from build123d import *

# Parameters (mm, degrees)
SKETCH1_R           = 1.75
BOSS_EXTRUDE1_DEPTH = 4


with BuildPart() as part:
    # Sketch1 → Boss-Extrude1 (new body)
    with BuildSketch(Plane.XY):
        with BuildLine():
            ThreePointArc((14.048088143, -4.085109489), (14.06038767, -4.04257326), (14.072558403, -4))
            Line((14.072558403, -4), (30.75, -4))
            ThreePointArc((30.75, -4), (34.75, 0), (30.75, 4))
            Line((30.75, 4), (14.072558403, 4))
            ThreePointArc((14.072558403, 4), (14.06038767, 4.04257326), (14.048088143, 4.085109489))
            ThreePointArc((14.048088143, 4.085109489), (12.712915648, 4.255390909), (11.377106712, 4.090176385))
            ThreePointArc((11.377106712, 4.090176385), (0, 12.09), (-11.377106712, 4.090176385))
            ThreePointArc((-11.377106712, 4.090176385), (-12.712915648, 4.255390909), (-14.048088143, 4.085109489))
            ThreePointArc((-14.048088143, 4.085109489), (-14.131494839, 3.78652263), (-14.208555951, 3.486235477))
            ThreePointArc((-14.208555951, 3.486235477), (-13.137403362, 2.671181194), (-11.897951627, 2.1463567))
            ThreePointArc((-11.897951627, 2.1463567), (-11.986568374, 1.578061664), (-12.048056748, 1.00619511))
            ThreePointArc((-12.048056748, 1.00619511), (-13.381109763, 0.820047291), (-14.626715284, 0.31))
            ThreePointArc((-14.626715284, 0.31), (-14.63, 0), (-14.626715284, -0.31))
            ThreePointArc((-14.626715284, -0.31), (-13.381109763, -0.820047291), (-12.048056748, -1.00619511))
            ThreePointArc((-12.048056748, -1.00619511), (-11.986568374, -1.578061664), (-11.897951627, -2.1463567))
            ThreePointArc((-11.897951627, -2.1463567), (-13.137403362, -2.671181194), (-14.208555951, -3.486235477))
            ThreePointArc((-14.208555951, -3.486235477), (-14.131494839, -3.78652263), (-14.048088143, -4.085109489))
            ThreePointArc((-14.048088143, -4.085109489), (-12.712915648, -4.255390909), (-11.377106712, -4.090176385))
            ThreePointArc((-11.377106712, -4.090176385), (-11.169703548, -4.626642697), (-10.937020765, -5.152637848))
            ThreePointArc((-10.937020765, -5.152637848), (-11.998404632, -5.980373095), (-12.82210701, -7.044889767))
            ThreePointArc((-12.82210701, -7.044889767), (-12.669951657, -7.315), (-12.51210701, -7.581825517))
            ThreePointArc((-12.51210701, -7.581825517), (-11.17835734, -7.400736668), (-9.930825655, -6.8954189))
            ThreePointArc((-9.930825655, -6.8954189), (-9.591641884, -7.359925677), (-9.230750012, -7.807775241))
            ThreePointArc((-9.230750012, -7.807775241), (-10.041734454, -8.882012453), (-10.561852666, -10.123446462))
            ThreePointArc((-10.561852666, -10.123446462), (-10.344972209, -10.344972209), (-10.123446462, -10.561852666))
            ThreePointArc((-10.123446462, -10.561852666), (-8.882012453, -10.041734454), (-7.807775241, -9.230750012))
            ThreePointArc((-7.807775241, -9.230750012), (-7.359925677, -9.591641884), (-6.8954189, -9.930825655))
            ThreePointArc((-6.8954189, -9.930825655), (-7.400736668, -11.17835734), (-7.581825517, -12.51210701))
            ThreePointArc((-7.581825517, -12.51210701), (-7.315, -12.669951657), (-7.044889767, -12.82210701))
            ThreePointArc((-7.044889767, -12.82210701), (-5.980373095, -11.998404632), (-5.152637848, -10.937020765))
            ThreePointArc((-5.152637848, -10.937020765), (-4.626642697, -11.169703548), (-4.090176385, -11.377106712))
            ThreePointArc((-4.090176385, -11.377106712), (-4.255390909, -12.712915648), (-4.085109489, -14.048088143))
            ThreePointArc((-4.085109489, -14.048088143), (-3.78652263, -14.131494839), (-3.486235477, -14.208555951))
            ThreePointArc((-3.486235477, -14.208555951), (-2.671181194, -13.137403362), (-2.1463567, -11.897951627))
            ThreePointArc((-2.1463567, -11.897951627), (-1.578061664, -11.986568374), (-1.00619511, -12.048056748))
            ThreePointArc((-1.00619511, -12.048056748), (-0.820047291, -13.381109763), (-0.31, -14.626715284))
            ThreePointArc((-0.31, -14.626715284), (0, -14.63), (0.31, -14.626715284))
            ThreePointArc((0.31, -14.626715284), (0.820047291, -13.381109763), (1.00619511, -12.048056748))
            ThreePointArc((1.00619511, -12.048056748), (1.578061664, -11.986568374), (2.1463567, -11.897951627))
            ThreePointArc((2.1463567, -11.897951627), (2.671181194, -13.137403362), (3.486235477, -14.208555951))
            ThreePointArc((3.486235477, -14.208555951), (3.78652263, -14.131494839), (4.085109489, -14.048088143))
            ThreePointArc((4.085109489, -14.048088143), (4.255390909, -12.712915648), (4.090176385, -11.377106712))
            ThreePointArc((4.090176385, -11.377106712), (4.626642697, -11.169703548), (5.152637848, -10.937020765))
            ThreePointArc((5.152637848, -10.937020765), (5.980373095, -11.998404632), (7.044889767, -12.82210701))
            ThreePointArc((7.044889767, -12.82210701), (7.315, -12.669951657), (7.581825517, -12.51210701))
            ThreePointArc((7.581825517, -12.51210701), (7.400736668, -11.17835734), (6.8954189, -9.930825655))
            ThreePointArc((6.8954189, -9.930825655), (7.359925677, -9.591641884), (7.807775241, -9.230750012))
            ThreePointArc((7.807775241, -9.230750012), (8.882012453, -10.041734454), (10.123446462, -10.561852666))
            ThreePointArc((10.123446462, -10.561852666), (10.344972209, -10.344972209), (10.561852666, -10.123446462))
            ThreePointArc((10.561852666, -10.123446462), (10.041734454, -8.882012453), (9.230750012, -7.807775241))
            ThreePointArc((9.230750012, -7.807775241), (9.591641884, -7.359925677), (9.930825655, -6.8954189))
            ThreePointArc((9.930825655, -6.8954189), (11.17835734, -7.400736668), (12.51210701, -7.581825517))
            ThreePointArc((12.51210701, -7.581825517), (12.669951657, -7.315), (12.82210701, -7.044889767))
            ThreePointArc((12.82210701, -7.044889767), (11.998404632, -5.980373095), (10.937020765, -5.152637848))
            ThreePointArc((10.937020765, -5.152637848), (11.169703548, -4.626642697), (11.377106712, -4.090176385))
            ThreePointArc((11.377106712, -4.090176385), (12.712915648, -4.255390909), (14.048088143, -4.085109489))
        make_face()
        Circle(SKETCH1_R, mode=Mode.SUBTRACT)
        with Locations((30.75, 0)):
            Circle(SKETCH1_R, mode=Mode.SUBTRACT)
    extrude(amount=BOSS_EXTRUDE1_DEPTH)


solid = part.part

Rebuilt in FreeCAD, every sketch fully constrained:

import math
import FreeCAD as App
import Part
import Sketcher
from FreeCAD import Vector
Q = App.Units.Quantity

doc = App.newDocument("Part")
body = doc.addObject("PartDesign::Body", "Body")

# Sketch on XY plane
sketch1 = body.newObject("Sketcher::SketchObject", "Sketch")
sketch1.AttachmentSupport = (doc.getObject("XY_Plane"), [""])
sketch1.MapMode = "FlatFace"
sketch1.addGeometry(Part.ArcOfCircle(Part.Circle(Vector(-0.000108, 0.000031, 0), Vector(0, 0, 1), 14.630112), math.radians(-16.214149), math.radians(-15.867332)), False)
sketch1.addGeometry(Part.LineSegment(Vector(14.072558, -4, 0), Vector(30.75, -4, 0)), False)
sketch1.addGeometry(Part.ArcOfCircle(Part.Circle(Vector(30.75, 0, 0), Vector(0, 0, 1), 4), math.radians(-90), math.radians(90)), False)
sketch1.addGeometry(Part.LineSegment(Vector(30.75, 4, 0), Vector(14.072558, 4, 0)), False)
sketch1.addGeometry(Part.ArcOfCircle(Part.Circle(Vector(-0.000108, -0.000031, 0), Vector(0, 0, 1), 14.630112), math.radians(15.867332), math.radians(16.214149)), False)
sketch1.addGeometry(Part.ArcOfCircle(Part.Circle(Vector(12.702672, -1.144599, 0), Vector(0, 0, 1), 5.4), math.radians(75.572711), math.radians(104.209907)), False)
sketch1.addGeometry(Part.ArcOfCircle(Part.Circle(Vector(0, 0, 0), Vector(0, 0, 1), 12.09), math.radians(19.773986), math.radians(160.226014)), False)
sketch1.addGeometry(Part.ArcOfCircle(Part.Circle(Vector(-12.702672, -1.144599, 0), Vector(0, 0, 1), 5.4), math.radians(75.790093), math.radians(104.427289)), False)
sketch1.addGeometry(Part.ArcOfCircle(Part.Circle(Vector(0, 0, 0), Vector(0, 0, 1), 14.63), math.radians(163.78585), math.radians(166.21415)), False)
sketch1.addGeometry(Part.ArcOfCircle(Part.Circle(Vector(-10.428537, 7.342588, 0), Vector(0, 0, 1), 5.4), math.radians(-134.427289), math.radians(-105.790093)), False)
sketch1.addGeometry(Part.ArcOfCircle(Part.Circle(Vector(0, 0, 0), Vector(0, 0, 1), 12.09), math.radians(169.773986), math.radians(175.226014)), False)
sketch1.addGeometry(Part.ArcOfCircle(Part.Circle(Vector(-11.973595, -4.393291, 0), Vector(0, 0, 1), 5.4), math.radians(90.790093), math.radians(119.427289)), False)
sketch1.addGeometry(Part.ArcOfCircle(Part.Circle(Vector(0, 0, 0), Vector(0, 0, 1), 14.63), math.radians(178.78585), math.radians(181.21415)), False)
sketch1.addGeometry(Part.ArcOfCircle(Part.Circle(Vector(-11.973595, 4.393291, 0), Vector(0, 0, 1), 5.4), math.radians(-119.427289), math.radians(-90.790093)), False)
sketch1.addGeometry(Part.ArcOfCircle(Part.Circle(Vector(0, 0, 0), Vector(0, 0, 1), 12.09), math.radians(-175.226014), math.radians(-169.773986)), False)
sketch1.addGeometry(Part.ArcOfCircle(Part.Circle(Vector(-10.428537, -7.342588, 0), Vector(0, 0, 1), 5.4), math.radians(105.790093), math.radians(134.427289)), False)
sketch1.addGeometry(Part.ArcOfCircle(Part.Circle(Vector(0, 0, 0), Vector(0, 0, 1), 14.63), math.radians(-166.21415), math.radians(-163.78585)), False)
sketch1.addGeometry(Part.ArcOfCircle(Part.Circle(Vector(-12.702672, 1.144599, 0), Vector(0, 0, 1), 5.4), math.radians(-104.427289), math.radians(-75.790093)), False)
sketch1.addGeometry(Part.ArcOfCircle(Part.Circle(Vector(0, 0, 0), Vector(0, 0, 1), 12.09), math.radians(-160.226014), math.radians(-154.773986)), False)
sketch1.addGeometry(Part.ArcOfCircle(Part.Circle(Vector(-8.172791, -9.791499, 0), Vector(0, 0, 1), 5.4), math.radians(120.790093), math.radians(149.427289)), False)
sketch1.addGeometry(Part.ArcOfCircle(Part.Circle(Vector(0.000002, 0.000001, 0), Vector(0, 0, 1), 14.630002), math.radians(-151.21415), math.radians(-148.78585)), False)
sketch1.addGeometry(Part.ArcOfCircle(Part.Circle(Vector(-12.566083, -2.182095, 0), Vector(0, 0, 1), 5.4), math.radians(-89.427289), math.radians(-60.790093)), False)
sketch1.addGeometry(Part.ArcOfCircle(Part.Circle(Vector(0, 0, 0), Vector(0, 0, 1), 12.09), math.radians(-145.226014), math.radians(-139.773986)), False)
sketch1.addGeometry(Part.ArcOfCircle(Part.Circle(Vector(-5.360084, -11.573136, 0), Vector(0, 0, 1), 5.4), math.radians(135.790093), math.radians(164.427289)), False)
sketch1.addGeometry(Part.ArcOfCircle(Part.Circle(Vector(0, 0, 0), Vector(0, 0, 1), 14.63), math.radians(-136.21415), math.radians(-133.78585)), False)
sketch1.addGeometry(Part.ArcOfCircle(Part.Circle(Vector(-11.573136, -5.360084, 0), Vector(0, 0, 1), 5.4), math.radians(-74.427289), math.radians(-45.790093)), False)
sketch1.addGeometry(Part.ArcOfCircle(Part.Circle(Vector(0, 0, 0), Vector(0, 0, 1), 12.09), math.radians(-130.226014), math.radians(-124.773986)), False)
sketch1.addGeometry(Part.ArcOfCircle(Part.Circle(Vector(-2.182095, -12.566083, 0), Vector(0, 0, 1), 5.4), math.radians(150.790093), math.radians(179.427289)), False)
sketch1.addGeometry(Part.ArcOfCircle(Part.Circle(Vector(0.000001, 0.000002, 0), Vector(0, 0, 1), 14.630002), math.radians(-121.21415), math.radians(-118.78585)), False)
sketch1.addGeometry(Part.ArcOfCircle(Part.Circle(Vector(-9.791499, -8.172791, 0), Vector(0, 0, 1), 5.4), math.radians(-59.427289), math.radians(-30.790093)), False)
sketch1.addGeometry(Part.ArcOfCircle(Part.Circle(Vector(0, 0, 0), Vector(0, 0, 1), 12.09), math.radians(-115.226014), math.radians(-109.773986)), False)
sketch1.addGeometry(Part.ArcOfCircle(Part.Circle(Vector(1.144599, -12.702672, 0), Vector(0, 0, 1), 5.4), math.radians(165.790093), math.radians(194.427289)), False)
sketch1.addGeometry(Part.ArcOfCircle(Part.Circle(Vector(0, 0, 0), Vector(0, 0, 1), 14.63), math.radians(-106.21415), math.radians(-103.78585)), False)
sketch1.addGeometry(Part.ArcOfCircle(Part.Circle(Vector(-7.342588, -10.428537, 0), Vector(0, 0, 1), 5.4), math.radians(-44.427289), math.radians(-15.790093)), False)
sketch1.addGeometry(Part.ArcOfCircle(Part.Circle(Vector(0, 0, 0), Vector(0, 0, 1), 12.09), math.radians(-100.226014), math.radians(-94.773986)), False)
sketch1.addGeometry(Part.ArcOfCircle(Part.Circle(Vector(4.393291, -11.973595, 0), Vector(0, 0, 1), 5.4), math.radians(-179.209907), math.radians(-150.572711)), False)
sketch1.addGeometry(Part.ArcOfCircle(Part.Circle(Vector(0, 0, 0), Vector(0, 0, 1), 14.63), math.radians(-91.21415), math.radians(-88.78585)), False)
sketch1.addGeometry(Part.ArcOfCircle(Part.Circle(Vector(-4.393291, -11.973595, 0), Vector(0, 0, 1), 5.4), math.radians(-29.427289), math.radians(-0.790093)), False)
sketch1.addGeometry(Part.ArcOfCircle(Part.Circle(Vector(0, 0, 0), Vector(0, 0, 1), 12.09), math.radians(-85.226014), math.radians(-79.773986)), False)
sketch1.addGeometry(Part.ArcOfCircle(Part.Circle(Vector(7.342588, -10.428537, 0), Vector(0, 0, 1), 5.4), math.radians(-164.209907), math.radians(-135.572711)), False)
sketch1.addGeometry(Part.ArcOfCircle(Part.Circle(Vector(0, 0, 0), Vector(0, 0, 1), 14.63), math.radians(-76.21415), math.radians(-73.78585)), False)
sketch1.addGeometry(Part.ArcOfCircle(Part.Circle(Vector(-1.144599, -12.702672, 0), Vector(0, 0, 1), 5.4), math.radians(-14.427289), math.radians(14.209907)), False)
sketch1.addGeometry(Part.ArcOfCircle(Part.Circle(Vector(0, 0, 0), Vector(0, 0, 1), 12.09), math.radians(-70.226014), math.radians(-64.773986)), False)
sketch1.addGeometry(Part.ArcOfCircle(Part.Circle(Vector(9.791499, -8.172791, 0), Vector(0, 0, 1), 5.4), math.radians(-149.209907), math.radians(-120.572711)), False)
sketch1.addGeometry(Part.ArcOfCircle(Part.Circle(Vector(-0.000001, 0.000002, 0), Vector(0, 0, 1), 14.630002), math.radians(-61.21415), math.radians(-58.78585)), False)
sketch1.addGeometry(Part.ArcOfCircle(Part.Circle(Vector(2.182095, -12.566083, 0), Vector(0, 0, 1), 5.4), math.radians(0.572711), math.radians(29.209907)), False)
sketch1.addGeometry(Part.ArcOfCircle(Part.Circle(Vector(0, 0, 0), Vector(0, 0, 1), 12.09), math.radians(-55.226014), math.radians(-49.773986)), False)
sketch1.addGeometry(Part.ArcOfCircle(Part.Circle(Vector(11.573136, -5.360084, 0), Vector(0, 0, 1), 5.4), math.radians(-134.209907), math.radians(-105.572711)), False)
sketch1.addGeometry(Part.ArcOfCircle(Part.Circle(Vector(0, 0, 0), Vector(0, 0, 1), 14.63), math.radians(-46.21415), math.radians(-43.78585)), False)
sketch1.addGeometry(Part.ArcOfCircle(Part.Circle(Vector(5.360084, -11.573136, 0), Vector(0, 0, 1), 5.4), math.radians(15.572711), math.radians(44.209907)), False)
sketch1.addGeometry(Part.ArcOfCircle(Part.Circle(Vector(0, 0, 0), Vector(0, 0, 1), 12.09), math.radians(-40.226014), math.radians(-34.773986)), False)
sketch1.addGeometry(Part.ArcOfCircle(Part.Circle(Vector(12.566083, -2.182095, 0), Vector(0, 0, 1), 5.4), math.radians(-119.209907), math.radians(-90.572711)), False)
sketch1.addGeometry(Part.ArcOfCircle(Part.Circle(Vector(-0.000002, 0.000001, 0), Vector(0, 0, 1), 14.630002), math.radians(-31.21415), math.radians(-28.78585)), False)
sketch1.addGeometry(Part.ArcOfCircle(Part.Circle(Vector(8.172791, -9.791499, 0), Vector(0, 0, 1), 5.4), math.radians(30.572711), math.radians(59.209907)), False)
sketch1.addGeometry(Part.ArcOfCircle(Part.Circle(Vector(0, 0, 0), Vector(0, 0, 1), 12.09), math.radians(-25.226014), math.radians(-19.773986)), False)
sketch1.addGeometry(Part.ArcOfCircle(Part.Circle(Vector(12.702672, 1.144599, 0), Vector(0, 0, 1), 5.4), math.radians(-104.209907), math.radians(-75.572711)), False)
sketch1.addGeometry(Part.Circle(Vector(0, 0, 0), Vector(0, 0, 1), 1.75), False)
sketch1.addGeometry(Part.Circle(Vector(30.75, 0, 0), Vector(0, 0, 1), 1.75), False)
sketch1.addConstraint(Sketcher.Constraint("Coincident", 0, 2, 1, 1))
sketch1.addConstraint(Sketcher.Constraint("Coincident", 1, 2, 2, 1))
sketch1.addConstraint(Sketcher.Constraint("Coincident", 2, 2, 3, 1))
sketch1.addConstraint(Sketcher.Constraint("Coincident", 3, 2, 4, 1))
sketch1.addConstraint(Sketcher.Constraint("Coincident", 4, 2, 5, 1))
sketch1.addConstraint(Sketcher.Constraint("Coincident", 5, 2, 6, 1))
sketch1.addConstraint(Sketcher.Constraint("Coincident", 6, 2, 7, 1))
sketch1.addConstraint(Sketcher.Constraint("Coincident", 7, 2, 8, 1))
sketch1.addConstraint(Sketcher.Constraint("Coincident", 8, 2, 9, 1))
sketch1.addConstraint(Sketcher.Constraint("Coincident", 9, 2, 10, 1))
sketch1.addConstraint(Sketcher.Constraint("Coincident", 10, 2, 11, 1))
sketch1.addConstraint(Sketcher.Constraint("Coincident", 11, 2, 12, 1))
sketch1.addConstraint(Sketcher.Constraint("Coincident", 12, 2, 13, 1))
sketch1.addConstraint(Sketcher.Constraint("Coincident", 13, 2, 14, 1))
sketch1.addConstraint(Sketcher.Constraint("Coincident", 14, 2, 15, 1))
sketch1.addConstraint(Sketcher.Constraint("Coincident", 15, 2, 16, 1))
sketch1.addConstraint(Sketcher.Constraint("Coincident", 16, 2, 17, 1))
sketch1.addConstraint(Sketcher.Constraint("Coincident", 17, 2, 18, 1))
sketch1.addConstraint(Sketcher.Constraint("Coincident", 18, 2, 19, 1))
sketch1.addConstraint(Sketcher.Constraint("Coincident", 19, 2, 20, 1))
sketch1.addConstraint(Sketcher.Constraint("Coincident", 20, 2, 21, 1))
sketch1.addConstraint(Sketcher.Constraint("Coincident", 21, 2, 22, 1))
sketch1.addConstraint(Sketcher.Constraint("Coincident", 22, 2, 23, 1))
sketch1.addConstraint(Sketcher.Constraint("Coincident", 23, 2, 24, 1))
sketch1.addConstraint(Sketcher.Constraint("Coincident", 24, 2, 25, 1))
sketch1.addConstraint(Sketcher.Constraint("Coincident", 25, 2, 26, 1))
sketch1.addConstraint(Sketcher.Constraint("Coincident", 26, 2, 27, 1))
sketch1.addConstraint(Sketcher.Constraint("Coincident", 27, 2, 28, 1))
sketch1.addConstraint(Sketcher.Constraint("Coincident", 28, 2, 29, 1))
sketch1.addConstraint(Sketcher.Constraint("Coincident", 29, 2, 30, 1))
sketch1.addConstraint(Sketcher.Constraint("Coincident", 30, 2, 31, 1))
sketch1.addConstraint(Sketcher.Constraint("Coincident", 31, 2, 32, 1))
sketch1.addConstraint(Sketcher.Constraint("Coincident", 32, 2, 33, 1))
sketch1.addConstraint(Sketcher.Constraint("Coincident", 33, 2, 34, 1))
sketch1.addConstraint(Sketcher.Constraint("Coincident", 34, 2, 35, 1))
sketch1.addConstraint(Sketcher.Constraint("Coincident", 35, 2, 36, 1))
sketch1.addConstraint(Sketcher.Constraint("Coincident", 36, 2, 37, 1))
sketch1.addConstraint(Sketcher.Constraint("Coincident", 37, 2, 38, 1))
sketch1.addConstraint(Sketcher.Constraint("Coincident", 38, 2, 39, 1))
sketch1.addConstraint(Sketcher.Constraint("Coincident", 39, 2, 40, 1))
sketch1.addConstraint(Sketcher.Constraint("Coincident", 40, 2, 41, 1))
sketch1.addConstraint(Sketcher.Constraint("Coincident", 41, 2, 42, 1))
sketch1.addConstraint(Sketcher.Constraint("Coincident", 42, 2, 43, 1))
sketch1.addConstraint(Sketcher.Constraint("Coincident", 43, 2, 44, 1))
sketch1.addConstraint(Sketcher.Constraint("Coincident", 44, 2, 45, 1))
sketch1.addConstraint(Sketcher.Constraint("Coincident", 45, 2, 46, 1))
sketch1.addConstraint(Sketcher.Constraint("Coincident", 46, 2, 47, 1))
sketch1.addConstraint(Sketcher.Constraint("Coincident", 47, 2, 48, 1))
sketch1.addConstraint(Sketcher.Constraint("Coincident", 48, 2, 49, 1))
sketch1.addConstraint(Sketcher.Constraint("Coincident", 49, 2, 50, 1))
sketch1.addConstraint(Sketcher.Constraint("Coincident", 50, 2, 51, 1))
sketch1.addConstraint(Sketcher.Constraint("Coincident", 51, 2, 52, 1))
sketch1.addConstraint(Sketcher.Constraint("Coincident", 52, 2, 53, 1))
sketch1.addConstraint(Sketcher.Constraint("Coincident", 53, 2, 54, 1))
sketch1.addConstraint(Sketcher.Constraint("Coincident", 54, 2, 55, 1))
sketch1.addConstraint(Sketcher.Constraint("Coincident", 55, 2, 0, 1))
sketch1.addConstraint(Sketcher.Constraint("Horizontal", 1))
sketch1.addConstraint(Sketcher.Constraint("Horizontal", 3))
sketch1.addConstraint(Sketcher.Constraint("Coincident", 6, 3, -1, 1))
sketch1.addConstraint(Sketcher.Constraint("Coincident", 8, 3, -1, 1))
sketch1.addConstraint(Sketcher.Constraint("Coincident", 10, 3, -1, 1))
sketch1.addConstraint(Sketcher.Constraint("Coincident", 12, 3, -1, 1))
sketch1.addConstraint(Sketcher.Constraint("Coincident", 14, 3, -1, 1))
sketch1.addConstraint(Sketcher.Constraint("Coincident", 16, 3, -1, 1))
sketch1.addConstraint(Sketcher.Constraint("Coincident", 18, 3, -1, 1))
sketch1.addConstraint(Sketcher.Constraint("Coincident", 20, 3, -1, 1))
sketch1.addConstraint(Sketcher.Constraint("Coincident", 22, 3, -1, 1))
sketch1.addConstraint(Sketcher.Constraint("Coincident", 24, 3, -1, 1))
sketch1.addConstraint(Sketcher.Constraint("Coincident", 26, 3, -1, 1))
sketch1.addConstraint(Sketcher.Constraint("Coincident", 28, 3, -1, 1))
sketch1.addConstraint(Sketcher.Constraint("Coincident", 30, 3, -1, 1))
sketch1.addConstraint(Sketcher.Constraint("Coincident", 32, 3, -1, 1))
sketch1.addConstraint(Sketcher.Constraint("Coincident", 34, 3, -1, 1))
sketch1.addConstraint(Sketcher.Constraint("Coincident", 36, 3, -1, 1))
sketch1.addConstraint(Sketcher.Constraint("Coincident", 38, 3, -1, 1))
sketch1.addConstraint(Sketcher.Constraint("Coincident", 40, 3, -1, 1))
sketch1.addConstraint(Sketcher.Constraint("Coincident", 42, 3, -1, 1))
sketch1.addConstraint(Sketcher.Constraint("Coincident", 44, 3, -1, 1))
sketch1.addConstraint(Sketcher.Constraint("Coincident", 46, 3, -1, 1))
sketch1.addConstraint(Sketcher.Constraint("Coincident", 48, 3, -1, 1))
sketch1.addConstraint(Sketcher.Constraint("Coincident", 50, 3, -1, 1))
sketch1.addConstraint(Sketcher.Constraint("Coincident", 52, 3, -1, 1))
sketch1.addConstraint(Sketcher.Constraint("Coincident", 54, 3, -1, 1))
sketch1.addConstraint(Sketcher.Constraint("Coincident", 56, 3, -1, 1))
sketch1.addConstraint(Sketcher.Constraint("Coincident", 57, 3, 2, 3))
sketch1.addConstraint(Sketcher.Constraint("PointOnObject", 2, 3, -1))
sketch1.addConstraint(Sketcher.Constraint("Radius", 2, Q("4 mm")))
sketch1.addConstraint(Sketcher.Constraint("Diameter", 56, Q("3.5 mm")))
sketch1.addConstraint(Sketcher.Constraint("Diameter", 57, Q("3.5 mm")))
sketch1.addConstraint(Sketcher.Constraint("Radius", 5, Q("5.4 mm")))
sketch1.addConstraint(Sketcher.Constraint("Radius", 7, Q("5.4 mm")))
sketch1.addConstraint(Sketcher.Constraint("Radius", 9, Q("5.4 mm")))
sketch1.addConstraint(Sketcher.Constraint("Radius", 11, Q("5.4 mm")))
sketch1.addConstraint(Sketcher.Constraint("Radius", 13, Q("5.4 mm")))
sketch1.addConstraint(Sketcher.Constraint("Radius", 15, Q("5.4 mm")))
sketch1.addConstraint(Sketcher.Constraint("Radius", 17, Q("5.4 mm")))
sketch1.addConstraint(Sketcher.Constraint("Radius", 19, Q("5.4 mm")))
sketch1.addConstraint(Sketcher.Constraint("Radius", 21, Q("5.4 mm")))
sketch1.addConstraint(Sketcher.Constraint("Radius", 23, Q("5.4 mm")))
sketch1.addConstraint(Sketcher.Constraint("Radius", 25, Q("5.4 mm")))
sketch1.addConstraint(Sketcher.Constraint("Radius", 27, Q("5.4 mm")))
sketch1.addConstraint(Sketcher.Constraint("Radius", 29, Q("5.4 mm")))
sketch1.addConstraint(Sketcher.Constraint("Radius", 31, Q("5.4 mm")))
sketch1.addConstraint(Sketcher.Constraint("Radius", 33, Q("5.4 mm")))
sketch1.addConstraint(Sketcher.Constraint("Radius", 35, Q("5.4 mm")))
sketch1.addConstraint(Sketcher.Constraint("Radius", 37, Q("5.4 mm")))
sketch1.addConstraint(Sketcher.Constraint("Radius", 39, Q("5.4 mm")))
sketch1.addConstraint(Sketcher.Constraint("Radius", 41, Q("5.4 mm")))
sketch1.addConstraint(Sketcher.Constraint("Radius", 43, Q("5.4 mm")))
sketch1.addConstraint(Sketcher.Constraint("Radius", 45, Q("5.4 mm")))
sketch1.addConstraint(Sketcher.Constraint("Radius", 47, Q("5.4 mm")))
sketch1.addConstraint(Sketcher.Constraint("Radius", 49, Q("5.4 mm")))
sketch1.addConstraint(Sketcher.Constraint("Radius", 51, Q("5.4 mm")))
sketch1.addConstraint(Sketcher.Constraint("Radius", 53, Q("5.4 mm")))
sketch1.addConstraint(Sketcher.Constraint("Radius", 55, Q("5.4 mm")))
sketch1.addConstraint(Sketcher.Constraint("Radius", 6, Q("12.09 mm")))
sketch1.addConstraint(Sketcher.Constraint("Radius", 8, Q("14.63 mm")))
sketch1.addConstraint(Sketcher.Constraint("Radius", 10, Q("12.09 mm")))
sketch1.addConstraint(Sketcher.Constraint("Radius", 12, Q("14.63 mm")))
sketch1.addConstraint(Sketcher.Constraint("Radius", 14, Q("12.09 mm")))
sketch1.addConstraint(Sketcher.Constraint("Radius", 16, Q("14.63 mm")))
sketch1.addConstraint(Sketcher.Constraint("Radius", 18, Q("12.09 mm")))
sketch1.addConstraint(Sketcher.Constraint("Radius", 20, Q("14.630002 mm")))
sketch1.addConstraint(Sketcher.Constraint("Radius", 22, Q("12.09 mm")))
sketch1.addConstraint(Sketcher.Constraint("Radius", 24, Q("14.63 mm")))
sketch1.addConstraint(Sketcher.Constraint("Radius", 26, Q("12.09 mm")))
sketch1.addConstraint(Sketcher.Constraint("Radius", 28, Q("14.630002 mm")))
sketch1.addConstraint(Sketcher.Constraint("Radius", 30, Q("12.09 mm")))
sketch1.addConstraint(Sketcher.Constraint("Radius", 32, Q("14.63 mm")))
sketch1.addConstraint(Sketcher.Constraint("Radius", 34, Q("12.09 mm")))
sketch1.addConstraint(Sketcher.Constraint("Radius", 36, Q("14.63 mm")))
sketch1.addConstraint(Sketcher.Constraint("Radius", 38, Q("12.09 mm")))
sketch1.addConstraint(Sketcher.Constraint("Radius", 40, Q("14.63 mm")))
sketch1.addConstraint(Sketcher.Constraint("Radius", 42, Q("12.09 mm")))
sketch1.addConstraint(Sketcher.Constraint("Radius", 44, Q("14.630002 mm")))
sketch1.addConstraint(Sketcher.Constraint("Radius", 46, Q("12.09 mm")))
sketch1.addConstraint(Sketcher.Constraint("Radius", 48, Q("14.63 mm")))
sketch1.addConstraint(Sketcher.Constraint("Radius", 50, Q("12.09 mm")))
sketch1.addConstraint(Sketcher.Constraint("Radius", 52, Q("14.630002 mm")))
sketch1.addConstraint(Sketcher.Constraint("Radius", 54, Q("12.09 mm")))
sketch1.addConstraint(Sketcher.Constraint("DistanceX", -1, 1, 2, 3, Q("30.75 mm")))
sketch1.addConstraint(Sketcher.Constraint("DistanceX", -1, 1, 1, 2, Q("30.75 mm")))
sketch1.addConstraint(Sketcher.Constraint("DistanceX", -1, 1, 2, 2, Q("30.75 mm")))
sketch1.addConstraint(Sketcher.Constraint("DistanceY", -1, 1, 11, 2, Q("0.31 mm")))
sketch1.addConstraint(Sketcher.Constraint("DistanceY", 12, 2, -1, 1, Q("0.31 mm")))
sketch1.addConstraint(Sketcher.Constraint("DistanceX", 35, 2, -1, 1, Q("0.31 mm")))
sketch1.addConstraint(Sketcher.Constraint("DistanceX", -1, 1, 36, 2, Q("0.31 mm")))
sketch1.addConstraint(Sketcher.Constraint("Radius", 0, Q("14.630112 mm")))
sketch1.addConstraint(Sketcher.Constraint("Radius", 4, Q("14.630112 mm")))
sketch1.addConstraint(Sketcher.Constraint("DistanceX", 1, 1, 1, 2, Q("16.677442 mm")))
sketch1.addConstraint(Sketcher.Constraint("DistanceX", 3, 2, 3, 1, Q("16.677442 mm")))
sketch1.addConstraint(Sketcher.Constraint("DistanceY", 5, 3, -1, 1, Q("1.144599 mm")))
sketch1.addConstraint(Sketcher.Constraint("DistanceY", 7, 3, -1, 1, Q("1.144599 mm")))
sketch1.addConstraint(Sketcher.Constraint("DistanceY", -1, 1, 17, 3, Q("1.144599 mm")))
sketch1.addConstraint(Sketcher.Constraint("DistanceY", 19, 3, -1, 1, Q("9.791499 mm")))
sketch1.addConstraint(Sketcher.Constraint("DistanceX", 29, 3, -1, 1, Q("9.791499 mm")))
sketch1.addConstraint(Sketcher.Constraint("DistanceX", -1, 1, 31, 3, Q("1.144599 mm")))
sketch1.addConstraint(Sketcher.Constraint("DistanceX", 41, 3, -1, 1, Q("1.144599 mm")))
sketch1.addConstraint(Sketcher.Constraint("DistanceX", -1, 1, 43, 3, Q("9.791499 mm")))
sketch1.addConstraint(Sketcher.Constraint("DistanceY", 53, 3, -1, 1, Q("9.791499 mm")))
sketch1.addConstraint(Sketcher.Constraint("DistanceY", -1, 1, 55, 3, Q("1.144599 mm")))
sketch1.addConstraint(Sketcher.Constraint("DistanceX", 0, 3, -1, 1, Q("0.000108 mm")))
sketch1.addConstraint(Sketcher.Constraint("DistanceX", 4, 3, -1, 1, Q("0.000108 mm")))
sketch1.addConstraint(Sketcher.Constraint("DistanceX", -1, 1, 5, 3, Q("12.702672 mm")))
sketch1.addConstraint(Sketcher.Constraint("DistanceX", 7, 3, -1, 1, Q("12.702672 mm")))
sketch1.addConstraint(Sketcher.Constraint("DistanceY", -1, 1, 9, 3, Q("7.342588 mm")))
sketch1.addConstraint(Sketcher.Constraint("DistanceY", 11, 3, -1, 1, Q("4.393291 mm")))
sketch1.addConstraint(Sketcher.Constraint("DistanceY", -1, 1, 13, 3, Q("4.393291 mm")))
sketch1.addConstraint(Sketcher.Constraint("DistanceY", 15, 3, -1, 1, Q("7.342588 mm")))
sketch1.addConstraint(Sketcher.Constraint("DistanceX", 17, 3, -1, 1, Q("12.702672 mm")))
sketch1.addConstraint(Sketcher.Constraint("DistanceX", 19, 3, -1, 1, Q("8.172791 mm")))
sketch1.addConstraint(Sketcher.Constraint("DistanceY", 29, 3, -1, 1, Q("8.172791 mm")))
sketch1.addConstraint(Sketcher.Constraint("DistanceY", 31, 3, -1, 1, Q("12.702672 mm")))
sketch1.addConstraint(Sketcher.Constraint("DistanceX", 33, 3, -1, 1, Q("7.342588 mm")))
sketch1.addConstraint(Sketcher.Constraint("DistanceX", -1, 1, 35, 3, Q("4.393291 mm")))
sketch1.addConstraint(Sketcher.Constraint("DistanceX", 37, 3, -1, 1, Q("4.393291 mm")))
sketch1.addConstraint(Sketcher.Constraint("DistanceX", -1, 1, 39, 3, Q("7.342588 mm")))
sketch1.addConstraint(Sketcher.Constraint("DistanceY", 41, 3, -1, 1, Q("12.702672 mm")))
sketch1.addConstraint(Sketcher.Constraint("DistanceY", 43, 3, -1, 1, Q("8.172791 mm")))
sketch1.addConstraint(Sketcher.Constraint("DistanceX", -1, 1, 53, 3, Q("8.172791 mm")))
sketch1.addConstraint(Sketcher.Constraint("DistanceX", -1, 1, 55, 3, Q("12.702672 mm")))
sketch1.addConstraint(Sketcher.Constraint("DistanceX", 9, 2, -1, 1, Q("11.897952 mm")))
sketch1.addConstraint(Sketcher.Constraint("DistanceX", 14, 2, -1, 1, Q("11.897952 mm")))
sketch1.addConstraint(Sketcher.Constraint("DistanceY", 21, 2, -1, 1, Q("6.895419 mm")))
sketch1.addConstraint(Sketcher.Constraint("DistanceX", 22, 2, -1, 1, Q("9.23075 mm")))
sketch1.addConstraint(Sketcher.Constraint("DistanceY", 25, 2, -1, 1, Q("9.23075 mm")))
sketch1.addConstraint(Sketcher.Constraint("DistanceX", 26, 2, -1, 1, Q("6.895419 mm")))
sketch1.addConstraint(Sketcher.Constraint("DistanceY", 33, 2, -1, 1, Q("11.897952 mm")))
sketch1.addConstraint(Sketcher.Constraint("DistanceY", 38, 2, -1, 1, Q("11.897952 mm")))
sketch1.addConstraint(Sketcher.Constraint("DistanceX", -1, 1, 45, 2, Q("6.895419 mm")))
sketch1.addConstraint(Sketcher.Constraint("DistanceY", 46, 2, -1, 1, Q("9.23075 mm")))
sketch1.addConstraint(Sketcher.Constraint("DistanceX", -1, 1, 49, 2, Q("9.23075 mm")))
sketch1.addConstraint(Sketcher.Constraint("DistanceY", 50, 2, -1, 1, Q("6.895419 mm")))
sketch1.addConstraint(Sketcher.Constraint("DistanceX", 21, 3, -1, 1, Q("12.566083 mm")))
sketch1.addConstraint(Sketcher.Constraint("DistanceX", 23, 3, -1, 1, Q("5.360084 mm")))
sketch1.addConstraint(Sketcher.Constraint("DistanceX", 25, 3, -1, 1, Q("11.573136 mm")))
sketch1.addConstraint(Sketcher.Constraint("DistanceX", 27, 3, -1, 1, Q("2.182095 mm")))
sketch1.addConstraint(Sketcher.Constraint("DistanceX", -1, 1, 45, 3, Q("2.182095 mm")))
sketch1.addConstraint(Sketcher.Constraint("DistanceX", -1, 1, 47, 3, Q("11.573136 mm")))
sketch1.addConstraint(Sketcher.Constraint("DistanceX", -1, 1, 49, 3, Q("5.360084 mm")))
sketch1.addConstraint(Sketcher.Constraint("DistanceX", -1, 1, 51, 3, Q("12.566083 mm")))
pad1 = body.newObject("PartDesign::Pad", "Pad")
pad1.Profile = sketch1
pad1.Length = 4

doc.recompute()
